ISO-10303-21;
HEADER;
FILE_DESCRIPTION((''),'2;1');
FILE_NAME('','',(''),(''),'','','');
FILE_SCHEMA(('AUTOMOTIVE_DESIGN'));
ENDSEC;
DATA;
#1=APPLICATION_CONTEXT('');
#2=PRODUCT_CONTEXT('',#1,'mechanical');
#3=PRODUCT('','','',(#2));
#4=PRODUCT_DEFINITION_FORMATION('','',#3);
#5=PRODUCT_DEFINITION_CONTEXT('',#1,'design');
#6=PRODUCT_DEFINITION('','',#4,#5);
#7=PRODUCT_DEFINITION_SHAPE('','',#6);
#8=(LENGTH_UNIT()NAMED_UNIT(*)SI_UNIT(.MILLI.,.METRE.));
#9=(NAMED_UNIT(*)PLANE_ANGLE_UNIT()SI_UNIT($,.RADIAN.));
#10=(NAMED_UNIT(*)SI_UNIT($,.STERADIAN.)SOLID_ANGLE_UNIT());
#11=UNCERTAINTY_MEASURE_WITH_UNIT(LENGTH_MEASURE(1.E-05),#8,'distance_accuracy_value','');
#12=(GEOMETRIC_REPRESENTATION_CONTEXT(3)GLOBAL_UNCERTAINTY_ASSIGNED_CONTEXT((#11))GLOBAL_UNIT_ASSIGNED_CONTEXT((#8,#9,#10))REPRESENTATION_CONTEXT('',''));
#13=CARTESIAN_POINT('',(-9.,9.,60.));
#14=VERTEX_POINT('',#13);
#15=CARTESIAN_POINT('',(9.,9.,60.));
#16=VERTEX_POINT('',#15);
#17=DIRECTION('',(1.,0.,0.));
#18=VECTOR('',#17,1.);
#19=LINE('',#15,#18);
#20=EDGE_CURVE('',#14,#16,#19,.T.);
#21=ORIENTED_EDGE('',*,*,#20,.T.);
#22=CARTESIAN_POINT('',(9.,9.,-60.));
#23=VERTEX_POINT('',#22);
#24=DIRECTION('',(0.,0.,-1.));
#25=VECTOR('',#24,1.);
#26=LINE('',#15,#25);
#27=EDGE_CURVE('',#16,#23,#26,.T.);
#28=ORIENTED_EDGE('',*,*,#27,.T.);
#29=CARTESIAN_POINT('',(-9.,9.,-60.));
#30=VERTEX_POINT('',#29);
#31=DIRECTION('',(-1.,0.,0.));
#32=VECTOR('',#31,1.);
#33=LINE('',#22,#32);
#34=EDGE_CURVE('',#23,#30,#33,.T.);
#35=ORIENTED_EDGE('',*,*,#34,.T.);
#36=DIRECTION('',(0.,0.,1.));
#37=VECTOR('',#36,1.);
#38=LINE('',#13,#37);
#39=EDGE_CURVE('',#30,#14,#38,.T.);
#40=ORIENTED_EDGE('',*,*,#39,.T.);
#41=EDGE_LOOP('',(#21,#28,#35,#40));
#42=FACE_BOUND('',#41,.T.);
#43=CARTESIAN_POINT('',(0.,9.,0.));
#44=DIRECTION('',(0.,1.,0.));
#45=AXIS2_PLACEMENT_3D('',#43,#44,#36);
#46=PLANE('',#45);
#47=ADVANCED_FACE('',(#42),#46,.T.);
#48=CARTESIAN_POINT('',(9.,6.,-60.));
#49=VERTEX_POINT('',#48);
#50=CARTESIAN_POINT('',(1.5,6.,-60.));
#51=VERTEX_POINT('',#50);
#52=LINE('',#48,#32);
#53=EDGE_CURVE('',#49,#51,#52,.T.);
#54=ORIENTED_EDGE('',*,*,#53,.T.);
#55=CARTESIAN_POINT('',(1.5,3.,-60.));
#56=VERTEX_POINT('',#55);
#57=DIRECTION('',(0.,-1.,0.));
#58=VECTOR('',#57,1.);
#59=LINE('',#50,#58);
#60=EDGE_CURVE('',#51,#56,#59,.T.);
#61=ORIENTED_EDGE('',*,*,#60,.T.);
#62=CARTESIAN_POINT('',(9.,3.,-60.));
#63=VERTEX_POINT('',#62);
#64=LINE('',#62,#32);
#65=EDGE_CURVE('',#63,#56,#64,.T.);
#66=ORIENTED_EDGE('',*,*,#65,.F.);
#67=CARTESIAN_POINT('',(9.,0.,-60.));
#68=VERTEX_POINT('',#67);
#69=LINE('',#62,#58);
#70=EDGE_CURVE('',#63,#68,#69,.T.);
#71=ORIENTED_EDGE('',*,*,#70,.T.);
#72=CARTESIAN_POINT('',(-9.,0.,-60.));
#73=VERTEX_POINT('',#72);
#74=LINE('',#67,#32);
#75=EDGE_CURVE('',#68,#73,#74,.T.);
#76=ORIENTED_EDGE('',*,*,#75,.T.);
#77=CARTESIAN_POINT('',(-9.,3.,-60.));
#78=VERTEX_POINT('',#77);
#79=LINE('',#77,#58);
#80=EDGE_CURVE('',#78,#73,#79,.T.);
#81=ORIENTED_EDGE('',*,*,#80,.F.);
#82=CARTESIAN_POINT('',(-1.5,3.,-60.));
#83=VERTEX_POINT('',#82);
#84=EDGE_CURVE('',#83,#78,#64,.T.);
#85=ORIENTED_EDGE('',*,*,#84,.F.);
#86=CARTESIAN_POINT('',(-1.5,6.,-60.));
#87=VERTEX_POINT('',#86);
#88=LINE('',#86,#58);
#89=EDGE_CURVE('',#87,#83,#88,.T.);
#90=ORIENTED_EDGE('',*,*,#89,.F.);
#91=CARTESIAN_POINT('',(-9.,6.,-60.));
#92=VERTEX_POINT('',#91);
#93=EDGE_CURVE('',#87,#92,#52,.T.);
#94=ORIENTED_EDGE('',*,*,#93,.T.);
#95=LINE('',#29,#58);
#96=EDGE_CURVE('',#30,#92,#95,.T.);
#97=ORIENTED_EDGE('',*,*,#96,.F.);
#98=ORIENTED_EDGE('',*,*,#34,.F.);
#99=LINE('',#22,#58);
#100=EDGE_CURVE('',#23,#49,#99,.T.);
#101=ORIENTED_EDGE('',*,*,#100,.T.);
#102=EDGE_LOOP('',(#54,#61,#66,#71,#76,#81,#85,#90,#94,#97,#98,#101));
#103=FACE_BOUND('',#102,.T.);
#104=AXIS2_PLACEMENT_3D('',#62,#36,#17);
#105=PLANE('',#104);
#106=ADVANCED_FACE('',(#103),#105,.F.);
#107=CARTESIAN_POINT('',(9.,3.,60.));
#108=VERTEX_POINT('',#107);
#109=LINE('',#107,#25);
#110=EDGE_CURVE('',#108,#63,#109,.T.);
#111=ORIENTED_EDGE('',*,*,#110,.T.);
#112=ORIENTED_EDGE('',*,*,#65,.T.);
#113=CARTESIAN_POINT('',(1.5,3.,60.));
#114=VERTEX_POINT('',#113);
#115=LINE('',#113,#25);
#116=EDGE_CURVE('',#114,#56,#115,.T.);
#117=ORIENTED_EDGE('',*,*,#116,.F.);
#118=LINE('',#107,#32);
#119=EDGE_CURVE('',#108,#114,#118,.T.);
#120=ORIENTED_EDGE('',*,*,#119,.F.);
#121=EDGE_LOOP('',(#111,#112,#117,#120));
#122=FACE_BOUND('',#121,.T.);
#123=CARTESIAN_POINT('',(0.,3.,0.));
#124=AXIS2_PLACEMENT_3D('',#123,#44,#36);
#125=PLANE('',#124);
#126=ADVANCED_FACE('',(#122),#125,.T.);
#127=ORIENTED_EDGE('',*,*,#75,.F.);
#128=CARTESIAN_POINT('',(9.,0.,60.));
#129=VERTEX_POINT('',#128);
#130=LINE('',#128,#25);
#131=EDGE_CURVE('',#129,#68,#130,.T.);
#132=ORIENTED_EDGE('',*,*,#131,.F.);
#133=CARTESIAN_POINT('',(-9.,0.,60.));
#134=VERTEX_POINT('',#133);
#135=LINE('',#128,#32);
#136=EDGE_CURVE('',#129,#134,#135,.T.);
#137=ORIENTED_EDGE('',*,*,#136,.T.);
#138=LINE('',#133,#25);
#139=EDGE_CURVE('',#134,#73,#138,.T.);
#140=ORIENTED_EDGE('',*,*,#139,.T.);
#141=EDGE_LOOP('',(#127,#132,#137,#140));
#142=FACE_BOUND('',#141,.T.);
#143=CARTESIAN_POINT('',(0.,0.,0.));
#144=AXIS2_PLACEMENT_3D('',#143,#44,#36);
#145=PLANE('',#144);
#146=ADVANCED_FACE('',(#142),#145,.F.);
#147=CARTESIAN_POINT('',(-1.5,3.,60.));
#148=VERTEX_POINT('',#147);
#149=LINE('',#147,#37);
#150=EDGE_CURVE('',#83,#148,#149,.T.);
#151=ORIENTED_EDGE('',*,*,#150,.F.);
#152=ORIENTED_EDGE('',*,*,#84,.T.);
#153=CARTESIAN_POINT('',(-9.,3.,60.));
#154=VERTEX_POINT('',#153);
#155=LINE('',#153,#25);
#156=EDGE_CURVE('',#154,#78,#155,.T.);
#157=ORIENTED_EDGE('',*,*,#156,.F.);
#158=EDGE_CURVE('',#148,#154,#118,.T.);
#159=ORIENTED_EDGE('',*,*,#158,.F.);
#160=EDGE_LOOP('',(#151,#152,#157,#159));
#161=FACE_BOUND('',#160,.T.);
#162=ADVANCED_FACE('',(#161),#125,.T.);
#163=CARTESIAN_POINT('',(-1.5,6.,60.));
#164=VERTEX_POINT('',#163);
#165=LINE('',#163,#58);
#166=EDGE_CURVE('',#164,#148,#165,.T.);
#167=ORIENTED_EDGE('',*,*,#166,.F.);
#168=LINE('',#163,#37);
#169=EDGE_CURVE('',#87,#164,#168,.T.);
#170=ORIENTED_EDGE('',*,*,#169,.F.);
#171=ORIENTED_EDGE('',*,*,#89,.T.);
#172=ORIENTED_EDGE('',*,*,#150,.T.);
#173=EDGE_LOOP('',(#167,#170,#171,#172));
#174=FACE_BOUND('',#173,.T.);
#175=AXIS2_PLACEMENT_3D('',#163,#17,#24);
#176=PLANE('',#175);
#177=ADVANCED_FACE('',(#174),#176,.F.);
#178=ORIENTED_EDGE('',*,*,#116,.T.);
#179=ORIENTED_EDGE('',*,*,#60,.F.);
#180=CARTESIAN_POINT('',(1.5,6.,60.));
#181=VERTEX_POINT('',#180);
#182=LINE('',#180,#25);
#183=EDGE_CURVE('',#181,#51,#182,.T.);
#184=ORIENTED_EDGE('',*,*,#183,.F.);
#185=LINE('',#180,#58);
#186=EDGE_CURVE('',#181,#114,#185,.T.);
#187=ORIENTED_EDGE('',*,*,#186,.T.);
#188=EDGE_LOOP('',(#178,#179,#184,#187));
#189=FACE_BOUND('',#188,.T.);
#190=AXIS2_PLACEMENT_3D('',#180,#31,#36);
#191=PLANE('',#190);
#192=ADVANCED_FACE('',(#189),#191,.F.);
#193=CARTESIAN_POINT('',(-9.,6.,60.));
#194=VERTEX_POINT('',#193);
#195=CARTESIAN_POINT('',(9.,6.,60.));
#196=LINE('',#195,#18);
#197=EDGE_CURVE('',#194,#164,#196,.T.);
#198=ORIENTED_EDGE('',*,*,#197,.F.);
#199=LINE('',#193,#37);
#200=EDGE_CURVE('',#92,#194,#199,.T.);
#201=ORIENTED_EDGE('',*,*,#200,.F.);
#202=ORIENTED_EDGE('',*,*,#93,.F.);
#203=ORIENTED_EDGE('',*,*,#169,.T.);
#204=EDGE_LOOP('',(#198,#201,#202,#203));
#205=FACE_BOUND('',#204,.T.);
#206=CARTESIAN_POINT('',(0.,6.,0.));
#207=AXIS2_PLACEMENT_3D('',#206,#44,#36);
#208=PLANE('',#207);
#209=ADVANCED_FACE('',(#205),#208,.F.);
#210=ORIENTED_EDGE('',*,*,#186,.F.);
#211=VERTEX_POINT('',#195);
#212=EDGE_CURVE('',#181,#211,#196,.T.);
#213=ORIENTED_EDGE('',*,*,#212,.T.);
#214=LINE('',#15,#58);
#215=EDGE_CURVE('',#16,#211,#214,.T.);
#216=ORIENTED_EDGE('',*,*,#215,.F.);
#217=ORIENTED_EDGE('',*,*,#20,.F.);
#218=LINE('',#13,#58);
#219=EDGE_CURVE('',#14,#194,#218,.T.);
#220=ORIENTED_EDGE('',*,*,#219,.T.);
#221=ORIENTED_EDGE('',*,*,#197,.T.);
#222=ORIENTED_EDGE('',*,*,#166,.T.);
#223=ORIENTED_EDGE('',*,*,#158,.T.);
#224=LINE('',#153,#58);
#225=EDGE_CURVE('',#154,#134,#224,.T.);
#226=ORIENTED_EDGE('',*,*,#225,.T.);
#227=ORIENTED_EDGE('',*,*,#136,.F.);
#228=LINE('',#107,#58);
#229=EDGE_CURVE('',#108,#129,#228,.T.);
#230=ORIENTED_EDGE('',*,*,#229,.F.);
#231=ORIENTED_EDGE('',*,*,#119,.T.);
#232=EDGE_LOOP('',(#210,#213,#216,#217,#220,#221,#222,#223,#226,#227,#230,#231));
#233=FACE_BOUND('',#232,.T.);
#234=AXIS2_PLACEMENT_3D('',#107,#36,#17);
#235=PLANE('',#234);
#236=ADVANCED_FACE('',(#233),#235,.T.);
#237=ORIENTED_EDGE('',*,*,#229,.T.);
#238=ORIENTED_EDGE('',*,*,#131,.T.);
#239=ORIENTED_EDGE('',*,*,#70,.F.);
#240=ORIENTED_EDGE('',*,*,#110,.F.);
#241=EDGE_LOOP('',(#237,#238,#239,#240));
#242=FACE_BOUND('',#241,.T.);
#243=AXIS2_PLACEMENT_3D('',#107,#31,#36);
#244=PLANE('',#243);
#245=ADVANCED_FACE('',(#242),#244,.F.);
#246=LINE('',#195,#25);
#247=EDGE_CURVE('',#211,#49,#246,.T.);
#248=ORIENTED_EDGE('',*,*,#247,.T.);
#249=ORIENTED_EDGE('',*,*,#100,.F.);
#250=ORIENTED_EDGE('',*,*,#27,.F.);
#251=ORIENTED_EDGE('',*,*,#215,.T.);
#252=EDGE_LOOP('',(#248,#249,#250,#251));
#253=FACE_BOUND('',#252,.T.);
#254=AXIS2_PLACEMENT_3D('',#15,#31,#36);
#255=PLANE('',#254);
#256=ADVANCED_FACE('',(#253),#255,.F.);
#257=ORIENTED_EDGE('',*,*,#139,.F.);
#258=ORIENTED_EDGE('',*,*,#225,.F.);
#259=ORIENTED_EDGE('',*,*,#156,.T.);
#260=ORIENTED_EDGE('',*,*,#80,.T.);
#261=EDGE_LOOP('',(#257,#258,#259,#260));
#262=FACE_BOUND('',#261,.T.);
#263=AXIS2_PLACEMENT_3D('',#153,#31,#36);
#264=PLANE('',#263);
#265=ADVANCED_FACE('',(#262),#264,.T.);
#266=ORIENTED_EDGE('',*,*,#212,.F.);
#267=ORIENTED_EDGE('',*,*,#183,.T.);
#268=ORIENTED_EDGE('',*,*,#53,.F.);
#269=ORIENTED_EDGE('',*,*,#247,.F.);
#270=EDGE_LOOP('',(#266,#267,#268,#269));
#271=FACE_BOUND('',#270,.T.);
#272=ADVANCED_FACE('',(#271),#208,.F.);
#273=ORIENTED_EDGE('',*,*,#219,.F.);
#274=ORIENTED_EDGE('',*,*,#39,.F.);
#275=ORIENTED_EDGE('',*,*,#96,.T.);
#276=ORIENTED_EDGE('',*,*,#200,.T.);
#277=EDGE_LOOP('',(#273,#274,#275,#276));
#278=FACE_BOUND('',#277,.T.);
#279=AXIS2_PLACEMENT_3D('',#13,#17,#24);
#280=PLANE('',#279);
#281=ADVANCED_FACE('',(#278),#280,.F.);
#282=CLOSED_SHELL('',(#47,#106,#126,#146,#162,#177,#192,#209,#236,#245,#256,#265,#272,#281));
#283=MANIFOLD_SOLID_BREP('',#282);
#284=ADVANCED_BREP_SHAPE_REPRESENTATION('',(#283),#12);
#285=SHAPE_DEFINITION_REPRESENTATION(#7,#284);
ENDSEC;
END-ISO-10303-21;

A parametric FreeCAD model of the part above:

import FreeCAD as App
import Part
import Sketcher
from FreeCAD import Vector

doc = App.newDocument("Part")
params = doc.addObject("Spreadsheet::Sheet", "Params")
for row, (alias, value) in enumerate([
    ("sketch1_width", "18 mm"),
    ("sketch1_height", "120 mm"),
    ("pad1_length", "3 mm"),
    ("sketch2_width", "3 mm"),
    ("sketch2_height", "120 mm"),
    ("pad2_length", "3 mm"),
    ("sketch3_width", "18 mm"),
    ("sketch3_height", "120 mm"),
    ("pad3_length", "3 mm"),
], start=1):
    params.set(f"A{row}", alias)
    params.set(f"B{row}", "=" + value)
    params.setAlias(f"B{row}", alias)

body = doc.addObject("PartDesign::Body", "Body")

# Sketch on XZ plane
sketch1 = body.newObject("Sketcher::SketchObject", "Sketch")
sketch1.AttachmentSupport = (doc.getObject("XZ_Plane"), [""])
sketch1.MapMode = "FlatFace"
sketch1.addGeometry([
    Part.LineSegment(Vector(-9, -60, 0), Vector(-9, 60, 0)),
    Part.LineSegment(Vector(-9, 60, 0), Vector(9, 60, 0)),
    Part.LineSegment(Vector(9, 60, 0), Vector(9, -60, 0)),
    Part.LineSegment(Vector(9, -60, 0), Vector(-9, -60, 0)),
], False)
sketch1.addConstraint([
    Sketcher.Constraint("Coincident", 0, 2, 1, 1),
    Sketcher.Constraint("Coincident", 1, 2, 2, 1),
    Sketcher.Constraint("Coincident", 2, 2, 3, 1),
    Sketcher.Constraint("Coincident", 3, 2, 0, 1),
    Sketcher.Constraint("Vertical", 0),
    Sketcher.Constraint("Horizontal", 1),
    Sketcher.Constraint("Vertical", 2),
    Sketcher.Constraint("Horizontal", 3),
    Sketcher.Constraint("Symmetric", 0, 2, 2, 2, -1, 1),
    Sketcher.Constraint("DistanceX", 1, 1, 1, 2, 18.0),
    Sketcher.Constraint("DistanceY", 0, 1, 0, 2, 120.0),
])
sketch1.setExpression("Constraints[9]", "Params.sketch1_width")
sketch1.setExpression("Constraints[10]", "Params.sketch1_height")
pad1 = body.newObject("PartDesign::Pad", "Pad")
pad1.Profile = sketch1
pad1.setExpression("Length", "Params.pad1_length")
pad1.Reversed = True

# Sketch on XZ plane
sketch2 = body.newObject("Sketcher::SketchObject", "Sketch001")
sketch2.AttachmentSupport = (doc.getObject("XZ_Plane"), [""])
sketch2.MapMode = "FlatFace"
sketch2.AttachmentOffset = App.Placement(Vector(0, 0, -3), App.Rotation())
sketch2.addGeometry([
    Part.LineSegment(Vector(-1.5, -60, 0), Vector(-1.5, 60, 0)),
    Part.LineSegment(Vector(-1.5, 60, 0), Vector(1.5, 60, 0)),
    Part.LineSegment(Vector(1.5, 60, 0), Vector(1.5, -60, 0)),
    Part.LineSegment(Vector(1.5, -60, 0), Vector(-1.5, -60, 0)),
], False)
sketch2.addConstraint([
    Sketcher.Constraint("Coincident", 0, 2, 1, 1),
    Sketcher.Constraint("Coincident", 1, 2, 2, 1),
    Sketcher.Constraint("Coincident", 2, 2, 3, 1),
    Sketcher.Constraint("Coincident", 3, 2, 0, 1),
    Sketcher.Constraint("Vertical", 0),
    Sketcher.Constraint("Horizontal", 1),
    Sketcher.Constraint("Vertical", 2),
    Sketcher.Constraint("Horizontal", 3),
    Sketcher.Constraint("Symmetric", 0, 2, 2, 2, -1, 1),
    Sketcher.Constraint("DistanceX", 1, 1, 1, 2, 3.0),
    Sketcher.Constraint("DistanceY", 0, 1, 0, 2, 120.0),
])
sketch2.setExpression("Constraints[9]", "Params.sketch2_width")
sketch2.setExpression("Constraints[10]", "Params.sketch2_height")
pad2 = body.newObject("PartDesign::Pad", "Pad001")
pad2.Profile = sketch2
pad2.setExpression("Length", "Params.pad2_length")
pad2.Reversed = True

# Sketch on XZ plane
sketch3 = body.newObject("Sketcher::SketchObject", "Sketch002")
sketch3.AttachmentSupport = (doc.getObject("XZ_Plane"), [""])
sketch3.MapMode = "FlatFace"
sketch3.AttachmentOffset = App.Placement(Vector(0, 0, -6), App.Rotation())
sketch3.addGeometry([
    Part.LineSegment(Vector(-9, -60, 0), Vector(-9, 60, 0)),
    Part.LineSegment(Vector(-9, 60, 0), Vector(9, 60, 0)),
    Part.LineSegment(Vector(9, 60, 0), Vector(9, -60, 0)),
    Part.LineSegment(Vector(9, -60, 0), Vector(-9, -60, 0)),
], False)
sketch3.addConstraint([
    Sketcher.Constraint("Coincident", 0, 2, 1, 1),
    Sketcher.Constraint("Coincident", 1, 2, 2, 1),
    Sketcher.Constraint("Coincident", 2, 2, 3, 1),
    Sketcher.Constraint("Coincident", 3, 2, 0, 1),
    Sketcher.Constraint("Vertical", 0),
    Sketcher.Constraint("Horizontal", 1),
    Sketcher.Constraint("Vertical", 2),
    Sketcher.Constraint("Horizontal", 3),
    Sketcher.Constraint("Symmetric", 0, 2, 2, 2, -1, 1),
    Sketcher.Constraint("DistanceX", 1, 1, 1, 2, 18.0),
    Sketcher.Constraint("DistanceY", 0, 1, 0, 2, 120.0),
])
sketch3.setExpression("Constraints[9]", "Params.sketch3_width")
sketch3.setExpression("Constraints[10]", "Params.sketch3_height")
pad3 = body.newObject("PartDesign::Pad", "Pad002")
pad3.Profile = sketch3
pad3.setExpression("Length", "Params.pad3_length")
pad3.Reversed = True

doc.recompute()
